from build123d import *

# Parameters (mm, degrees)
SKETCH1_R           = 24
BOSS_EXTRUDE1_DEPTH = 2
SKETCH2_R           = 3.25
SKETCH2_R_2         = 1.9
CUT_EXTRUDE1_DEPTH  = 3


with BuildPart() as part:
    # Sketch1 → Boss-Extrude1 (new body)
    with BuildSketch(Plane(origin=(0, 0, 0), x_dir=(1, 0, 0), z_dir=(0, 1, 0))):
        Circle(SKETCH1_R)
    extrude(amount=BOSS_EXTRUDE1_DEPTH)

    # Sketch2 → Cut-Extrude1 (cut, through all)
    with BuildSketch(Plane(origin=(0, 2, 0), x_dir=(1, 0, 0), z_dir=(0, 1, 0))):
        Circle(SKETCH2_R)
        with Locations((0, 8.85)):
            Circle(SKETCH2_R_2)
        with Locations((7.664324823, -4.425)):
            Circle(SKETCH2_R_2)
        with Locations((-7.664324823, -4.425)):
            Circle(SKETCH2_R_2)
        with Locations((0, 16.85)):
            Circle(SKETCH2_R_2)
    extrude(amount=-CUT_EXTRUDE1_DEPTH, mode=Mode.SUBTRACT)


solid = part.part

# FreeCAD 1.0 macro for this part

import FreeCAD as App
import Part
import Sketcher
from FreeCAD import Vector

doc = App.newDocument("Part")
body = doc.addObject("PartDesign::Body", "Body")

sketch1 = body.newObject("Sketcher::SketchObject", "Sketch")
sketch1.AttachmentSupport = (doc.getObject("XZ_Plane"), [""])
sketch1.MapMode = "FlatFace"
sketch1.addGeometry(Part.Circle(Vector(0, 0, 0), Vector(0, 0, 1), 24), False)
sketch1.addConstraint([
    Sketcher.Constraint("Coincident", 0, 3, -1, 1),
    Sketcher.Constraint("Diameter", 0, 48.0),
])
pad1 = body.newObject("PartDesign::Pad", "Pad")
pad1.Profile = sketch1
pad1.Length = 2
pad1.Reversed = True

sketch2 = body.newObject("Sketcher::SketchObject", "Sketch001")
sketch2.AttachmentSupport = (doc.getObject("XZ_Plane"), [""])
sketch2.MapMode = "FlatFace"
sketch2.AttachmentOffset = App.Placement(Vector(0, 0, -2), App.Rotation())
sketch2.addGeometry([
    Part.Circle(Vector(0, 0, 0), Vector(0, 0, 1), 3.2),
    Part.Circle(Vector(0, -8.8, 0), Vector(0, 0, 1), 1.9),
    Part.Circle(Vector(7.7, 4.4, 0), Vector(0, 0, 1), 1.9),
    Part.Circle(Vector(-7.7, 4.4, 0), Vector(0, 0, 1), 1.9),
    Part.Circle(Vector(0, -16.9, 0), Vector(0, 0, 1), 1.9),
], False)
sketch2.addConstraint([
    Sketcher.Constraint("Coincident", 0, 3, -1, 1),
    Sketcher.Constraint("Equal", 1, 2),
    Sketcher.Constraint("Equal", 2, 3),
    Sketcher.Constraint("Equal", 3, 4),
    Sketcher.Constraint("Symmetric", 2, 3, 3, 3, -2),
    Sketcher.Constraint("PointOnObject", 1, 3, -2),
    Sketcher.Constraint("PointOnObject", 4, 3, -2),
    Sketcher.Constraint("Diameter", 0, 6.5),
    Sketcher.Constraint("Diameter", 1, 3.8),
    Sketcher.Constraint("DistanceY", 4, 3, 1, 3, 8.0),
    Sketcher.Constraint("DistanceY", 1, 3, -1, 1, 8.85),
    Sketcher.Constraint("DistanceY", -1, 1, 2, 3, 4.425),
    Sketcher.Constraint("DistanceX", 3, 3, 2, 3, 15.32865),
])
pocket1 = body.newObject("PartDesign::Pocket", "Pocket")
pocket1.Profile = sketch2
pocket1.Type = "ThroughAll"
pocket1.Reversed = True

doc.recompute()
